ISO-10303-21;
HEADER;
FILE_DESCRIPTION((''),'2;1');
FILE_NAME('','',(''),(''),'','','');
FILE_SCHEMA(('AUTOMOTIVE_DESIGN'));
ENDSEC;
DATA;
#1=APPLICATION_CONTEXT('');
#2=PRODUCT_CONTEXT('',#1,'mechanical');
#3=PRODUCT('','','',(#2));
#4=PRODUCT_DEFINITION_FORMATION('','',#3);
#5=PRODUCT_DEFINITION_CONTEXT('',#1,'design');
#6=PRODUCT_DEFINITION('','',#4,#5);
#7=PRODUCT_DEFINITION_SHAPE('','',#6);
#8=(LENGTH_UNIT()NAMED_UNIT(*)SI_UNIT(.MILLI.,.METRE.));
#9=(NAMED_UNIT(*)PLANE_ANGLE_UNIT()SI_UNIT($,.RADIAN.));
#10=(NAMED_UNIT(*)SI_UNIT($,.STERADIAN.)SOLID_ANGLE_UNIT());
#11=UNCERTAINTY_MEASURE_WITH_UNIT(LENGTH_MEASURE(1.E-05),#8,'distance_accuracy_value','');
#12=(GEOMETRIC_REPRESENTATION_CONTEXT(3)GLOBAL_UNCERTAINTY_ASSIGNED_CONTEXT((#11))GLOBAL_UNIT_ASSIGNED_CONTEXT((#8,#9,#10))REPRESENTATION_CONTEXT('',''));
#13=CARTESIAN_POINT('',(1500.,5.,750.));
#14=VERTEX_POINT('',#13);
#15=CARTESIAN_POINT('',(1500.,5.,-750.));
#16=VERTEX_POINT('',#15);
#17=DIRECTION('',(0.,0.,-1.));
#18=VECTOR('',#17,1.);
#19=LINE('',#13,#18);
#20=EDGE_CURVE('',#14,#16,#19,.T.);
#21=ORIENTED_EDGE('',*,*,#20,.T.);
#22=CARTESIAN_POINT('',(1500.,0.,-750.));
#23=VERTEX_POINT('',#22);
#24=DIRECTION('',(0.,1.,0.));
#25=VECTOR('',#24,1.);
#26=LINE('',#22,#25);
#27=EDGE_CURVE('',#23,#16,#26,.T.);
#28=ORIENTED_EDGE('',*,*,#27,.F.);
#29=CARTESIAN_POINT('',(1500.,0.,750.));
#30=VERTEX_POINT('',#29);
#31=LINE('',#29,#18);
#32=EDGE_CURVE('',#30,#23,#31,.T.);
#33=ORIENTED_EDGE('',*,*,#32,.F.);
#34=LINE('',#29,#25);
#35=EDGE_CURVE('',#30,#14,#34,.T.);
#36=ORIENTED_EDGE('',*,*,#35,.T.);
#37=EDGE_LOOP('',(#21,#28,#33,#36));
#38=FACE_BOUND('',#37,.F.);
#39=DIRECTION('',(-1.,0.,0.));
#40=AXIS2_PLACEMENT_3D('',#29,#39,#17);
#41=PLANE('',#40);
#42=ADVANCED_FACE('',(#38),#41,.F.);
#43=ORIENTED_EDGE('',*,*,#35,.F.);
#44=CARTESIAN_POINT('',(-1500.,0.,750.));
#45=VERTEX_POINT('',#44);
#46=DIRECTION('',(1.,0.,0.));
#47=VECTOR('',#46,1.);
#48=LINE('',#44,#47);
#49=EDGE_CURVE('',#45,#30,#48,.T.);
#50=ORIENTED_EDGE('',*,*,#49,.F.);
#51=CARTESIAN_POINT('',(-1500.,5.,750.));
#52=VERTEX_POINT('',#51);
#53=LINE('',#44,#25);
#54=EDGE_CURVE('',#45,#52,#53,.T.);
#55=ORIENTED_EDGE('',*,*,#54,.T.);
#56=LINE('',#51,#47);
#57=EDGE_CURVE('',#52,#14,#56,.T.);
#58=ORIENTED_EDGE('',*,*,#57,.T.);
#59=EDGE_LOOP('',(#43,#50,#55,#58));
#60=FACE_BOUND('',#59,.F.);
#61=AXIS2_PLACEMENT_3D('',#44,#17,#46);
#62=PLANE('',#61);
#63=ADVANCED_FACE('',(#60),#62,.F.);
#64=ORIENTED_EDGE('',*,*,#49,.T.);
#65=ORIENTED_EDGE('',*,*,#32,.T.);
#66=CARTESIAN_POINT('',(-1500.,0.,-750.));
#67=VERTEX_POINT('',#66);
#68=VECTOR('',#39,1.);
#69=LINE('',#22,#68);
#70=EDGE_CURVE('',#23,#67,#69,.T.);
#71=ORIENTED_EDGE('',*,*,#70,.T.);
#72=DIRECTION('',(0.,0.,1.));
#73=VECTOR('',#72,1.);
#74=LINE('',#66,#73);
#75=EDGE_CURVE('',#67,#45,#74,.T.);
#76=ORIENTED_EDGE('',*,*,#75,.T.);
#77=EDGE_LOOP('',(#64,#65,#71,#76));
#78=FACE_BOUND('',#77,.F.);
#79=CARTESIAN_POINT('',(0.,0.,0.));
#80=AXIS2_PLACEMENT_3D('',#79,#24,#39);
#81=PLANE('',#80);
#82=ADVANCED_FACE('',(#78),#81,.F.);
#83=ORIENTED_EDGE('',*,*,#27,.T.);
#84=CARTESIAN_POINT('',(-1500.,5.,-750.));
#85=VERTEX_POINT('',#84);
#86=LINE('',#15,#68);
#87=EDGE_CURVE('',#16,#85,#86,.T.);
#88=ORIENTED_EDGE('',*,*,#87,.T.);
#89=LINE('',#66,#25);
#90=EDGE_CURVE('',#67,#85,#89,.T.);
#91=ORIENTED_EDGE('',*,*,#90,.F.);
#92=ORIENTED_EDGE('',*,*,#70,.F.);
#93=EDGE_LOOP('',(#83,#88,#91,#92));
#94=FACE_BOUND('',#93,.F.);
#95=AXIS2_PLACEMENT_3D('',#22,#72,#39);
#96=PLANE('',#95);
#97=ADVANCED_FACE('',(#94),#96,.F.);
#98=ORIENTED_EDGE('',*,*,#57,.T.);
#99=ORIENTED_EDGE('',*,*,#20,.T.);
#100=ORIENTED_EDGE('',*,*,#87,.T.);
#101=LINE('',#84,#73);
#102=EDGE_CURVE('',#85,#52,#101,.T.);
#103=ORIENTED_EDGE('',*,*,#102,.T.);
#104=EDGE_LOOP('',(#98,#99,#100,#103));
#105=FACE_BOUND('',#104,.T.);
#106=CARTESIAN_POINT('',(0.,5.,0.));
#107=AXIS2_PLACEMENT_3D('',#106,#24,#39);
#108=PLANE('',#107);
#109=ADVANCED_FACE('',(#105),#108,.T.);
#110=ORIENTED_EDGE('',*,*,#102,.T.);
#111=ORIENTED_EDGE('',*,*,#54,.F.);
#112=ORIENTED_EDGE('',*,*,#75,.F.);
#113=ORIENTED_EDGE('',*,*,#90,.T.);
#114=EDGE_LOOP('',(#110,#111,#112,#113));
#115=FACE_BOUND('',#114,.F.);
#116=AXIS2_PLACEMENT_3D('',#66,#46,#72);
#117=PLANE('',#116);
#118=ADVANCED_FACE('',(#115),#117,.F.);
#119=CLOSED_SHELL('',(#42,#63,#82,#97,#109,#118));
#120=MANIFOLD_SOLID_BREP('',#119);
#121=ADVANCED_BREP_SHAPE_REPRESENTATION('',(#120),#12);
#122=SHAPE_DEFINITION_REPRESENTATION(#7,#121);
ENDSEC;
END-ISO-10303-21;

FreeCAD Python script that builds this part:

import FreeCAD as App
import Part
import Sketcher
from FreeCAD import Vector
Q = App.Units.Quantity

doc = App.newDocument("Part")
body = doc.addObject("PartDesign::Body", "Body")

sketch1 = body.newObject("Sketcher::SketchObject", "Sketch")
sketch1.AttachmentSupport = (doc.getObject("XZ_Plane"), [""])
sketch1.MapMode = "FlatFace"
sketch1.addGeometry([
    Part.LineSegment(Vector(-1500, -750, 0), Vector(-1500, 750, 0)),
    Part.LineSegment(Vector(-1500, 750, 0), Vector(1500, 750, 0)),
    Part.LineSegment(Vector(1500, 750, 0), Vector(1500, -750, 0)),
    Part.LineSegment(Vector(1500, -750, 0), Vector(-1500, -750, 0)),
], False)
sketch1.addConstraint([
    Sketcher.Constraint("Coincident", 0, 2, 1, 1),
    Sketcher.Constraint("Coincident", 1, 2, 2, 1),
    Sketcher.Constraint("Coincident", 2, 2, 3, 1),
    Sketcher.Constraint("Coincident", 3, 2, 0, 1),
    Sketcher.Constraint("Vertical", 0),
    Sketcher.Constraint("Horizontal", 1),
    Sketcher.Constraint("Vertical", 2),
    Sketcher.Constraint("Horizontal", 3),
    Sketcher.Constraint("Symmetric", 0, 2, 2, 2, -1, 1),
    Sketcher.Constraint("DistanceX", 1, 1, 1, 2, Q("3000 mm")),
    Sketcher.Constraint("DistanceY", 0, 1, 0, 2, Q("1500 mm")),
])
pad1 = body.newObject("PartDesign::Pad", "Pad")
pad1.Profile = sketch1
pad1.Length = 5
pad1.Reversed = True

doc.recompute()
